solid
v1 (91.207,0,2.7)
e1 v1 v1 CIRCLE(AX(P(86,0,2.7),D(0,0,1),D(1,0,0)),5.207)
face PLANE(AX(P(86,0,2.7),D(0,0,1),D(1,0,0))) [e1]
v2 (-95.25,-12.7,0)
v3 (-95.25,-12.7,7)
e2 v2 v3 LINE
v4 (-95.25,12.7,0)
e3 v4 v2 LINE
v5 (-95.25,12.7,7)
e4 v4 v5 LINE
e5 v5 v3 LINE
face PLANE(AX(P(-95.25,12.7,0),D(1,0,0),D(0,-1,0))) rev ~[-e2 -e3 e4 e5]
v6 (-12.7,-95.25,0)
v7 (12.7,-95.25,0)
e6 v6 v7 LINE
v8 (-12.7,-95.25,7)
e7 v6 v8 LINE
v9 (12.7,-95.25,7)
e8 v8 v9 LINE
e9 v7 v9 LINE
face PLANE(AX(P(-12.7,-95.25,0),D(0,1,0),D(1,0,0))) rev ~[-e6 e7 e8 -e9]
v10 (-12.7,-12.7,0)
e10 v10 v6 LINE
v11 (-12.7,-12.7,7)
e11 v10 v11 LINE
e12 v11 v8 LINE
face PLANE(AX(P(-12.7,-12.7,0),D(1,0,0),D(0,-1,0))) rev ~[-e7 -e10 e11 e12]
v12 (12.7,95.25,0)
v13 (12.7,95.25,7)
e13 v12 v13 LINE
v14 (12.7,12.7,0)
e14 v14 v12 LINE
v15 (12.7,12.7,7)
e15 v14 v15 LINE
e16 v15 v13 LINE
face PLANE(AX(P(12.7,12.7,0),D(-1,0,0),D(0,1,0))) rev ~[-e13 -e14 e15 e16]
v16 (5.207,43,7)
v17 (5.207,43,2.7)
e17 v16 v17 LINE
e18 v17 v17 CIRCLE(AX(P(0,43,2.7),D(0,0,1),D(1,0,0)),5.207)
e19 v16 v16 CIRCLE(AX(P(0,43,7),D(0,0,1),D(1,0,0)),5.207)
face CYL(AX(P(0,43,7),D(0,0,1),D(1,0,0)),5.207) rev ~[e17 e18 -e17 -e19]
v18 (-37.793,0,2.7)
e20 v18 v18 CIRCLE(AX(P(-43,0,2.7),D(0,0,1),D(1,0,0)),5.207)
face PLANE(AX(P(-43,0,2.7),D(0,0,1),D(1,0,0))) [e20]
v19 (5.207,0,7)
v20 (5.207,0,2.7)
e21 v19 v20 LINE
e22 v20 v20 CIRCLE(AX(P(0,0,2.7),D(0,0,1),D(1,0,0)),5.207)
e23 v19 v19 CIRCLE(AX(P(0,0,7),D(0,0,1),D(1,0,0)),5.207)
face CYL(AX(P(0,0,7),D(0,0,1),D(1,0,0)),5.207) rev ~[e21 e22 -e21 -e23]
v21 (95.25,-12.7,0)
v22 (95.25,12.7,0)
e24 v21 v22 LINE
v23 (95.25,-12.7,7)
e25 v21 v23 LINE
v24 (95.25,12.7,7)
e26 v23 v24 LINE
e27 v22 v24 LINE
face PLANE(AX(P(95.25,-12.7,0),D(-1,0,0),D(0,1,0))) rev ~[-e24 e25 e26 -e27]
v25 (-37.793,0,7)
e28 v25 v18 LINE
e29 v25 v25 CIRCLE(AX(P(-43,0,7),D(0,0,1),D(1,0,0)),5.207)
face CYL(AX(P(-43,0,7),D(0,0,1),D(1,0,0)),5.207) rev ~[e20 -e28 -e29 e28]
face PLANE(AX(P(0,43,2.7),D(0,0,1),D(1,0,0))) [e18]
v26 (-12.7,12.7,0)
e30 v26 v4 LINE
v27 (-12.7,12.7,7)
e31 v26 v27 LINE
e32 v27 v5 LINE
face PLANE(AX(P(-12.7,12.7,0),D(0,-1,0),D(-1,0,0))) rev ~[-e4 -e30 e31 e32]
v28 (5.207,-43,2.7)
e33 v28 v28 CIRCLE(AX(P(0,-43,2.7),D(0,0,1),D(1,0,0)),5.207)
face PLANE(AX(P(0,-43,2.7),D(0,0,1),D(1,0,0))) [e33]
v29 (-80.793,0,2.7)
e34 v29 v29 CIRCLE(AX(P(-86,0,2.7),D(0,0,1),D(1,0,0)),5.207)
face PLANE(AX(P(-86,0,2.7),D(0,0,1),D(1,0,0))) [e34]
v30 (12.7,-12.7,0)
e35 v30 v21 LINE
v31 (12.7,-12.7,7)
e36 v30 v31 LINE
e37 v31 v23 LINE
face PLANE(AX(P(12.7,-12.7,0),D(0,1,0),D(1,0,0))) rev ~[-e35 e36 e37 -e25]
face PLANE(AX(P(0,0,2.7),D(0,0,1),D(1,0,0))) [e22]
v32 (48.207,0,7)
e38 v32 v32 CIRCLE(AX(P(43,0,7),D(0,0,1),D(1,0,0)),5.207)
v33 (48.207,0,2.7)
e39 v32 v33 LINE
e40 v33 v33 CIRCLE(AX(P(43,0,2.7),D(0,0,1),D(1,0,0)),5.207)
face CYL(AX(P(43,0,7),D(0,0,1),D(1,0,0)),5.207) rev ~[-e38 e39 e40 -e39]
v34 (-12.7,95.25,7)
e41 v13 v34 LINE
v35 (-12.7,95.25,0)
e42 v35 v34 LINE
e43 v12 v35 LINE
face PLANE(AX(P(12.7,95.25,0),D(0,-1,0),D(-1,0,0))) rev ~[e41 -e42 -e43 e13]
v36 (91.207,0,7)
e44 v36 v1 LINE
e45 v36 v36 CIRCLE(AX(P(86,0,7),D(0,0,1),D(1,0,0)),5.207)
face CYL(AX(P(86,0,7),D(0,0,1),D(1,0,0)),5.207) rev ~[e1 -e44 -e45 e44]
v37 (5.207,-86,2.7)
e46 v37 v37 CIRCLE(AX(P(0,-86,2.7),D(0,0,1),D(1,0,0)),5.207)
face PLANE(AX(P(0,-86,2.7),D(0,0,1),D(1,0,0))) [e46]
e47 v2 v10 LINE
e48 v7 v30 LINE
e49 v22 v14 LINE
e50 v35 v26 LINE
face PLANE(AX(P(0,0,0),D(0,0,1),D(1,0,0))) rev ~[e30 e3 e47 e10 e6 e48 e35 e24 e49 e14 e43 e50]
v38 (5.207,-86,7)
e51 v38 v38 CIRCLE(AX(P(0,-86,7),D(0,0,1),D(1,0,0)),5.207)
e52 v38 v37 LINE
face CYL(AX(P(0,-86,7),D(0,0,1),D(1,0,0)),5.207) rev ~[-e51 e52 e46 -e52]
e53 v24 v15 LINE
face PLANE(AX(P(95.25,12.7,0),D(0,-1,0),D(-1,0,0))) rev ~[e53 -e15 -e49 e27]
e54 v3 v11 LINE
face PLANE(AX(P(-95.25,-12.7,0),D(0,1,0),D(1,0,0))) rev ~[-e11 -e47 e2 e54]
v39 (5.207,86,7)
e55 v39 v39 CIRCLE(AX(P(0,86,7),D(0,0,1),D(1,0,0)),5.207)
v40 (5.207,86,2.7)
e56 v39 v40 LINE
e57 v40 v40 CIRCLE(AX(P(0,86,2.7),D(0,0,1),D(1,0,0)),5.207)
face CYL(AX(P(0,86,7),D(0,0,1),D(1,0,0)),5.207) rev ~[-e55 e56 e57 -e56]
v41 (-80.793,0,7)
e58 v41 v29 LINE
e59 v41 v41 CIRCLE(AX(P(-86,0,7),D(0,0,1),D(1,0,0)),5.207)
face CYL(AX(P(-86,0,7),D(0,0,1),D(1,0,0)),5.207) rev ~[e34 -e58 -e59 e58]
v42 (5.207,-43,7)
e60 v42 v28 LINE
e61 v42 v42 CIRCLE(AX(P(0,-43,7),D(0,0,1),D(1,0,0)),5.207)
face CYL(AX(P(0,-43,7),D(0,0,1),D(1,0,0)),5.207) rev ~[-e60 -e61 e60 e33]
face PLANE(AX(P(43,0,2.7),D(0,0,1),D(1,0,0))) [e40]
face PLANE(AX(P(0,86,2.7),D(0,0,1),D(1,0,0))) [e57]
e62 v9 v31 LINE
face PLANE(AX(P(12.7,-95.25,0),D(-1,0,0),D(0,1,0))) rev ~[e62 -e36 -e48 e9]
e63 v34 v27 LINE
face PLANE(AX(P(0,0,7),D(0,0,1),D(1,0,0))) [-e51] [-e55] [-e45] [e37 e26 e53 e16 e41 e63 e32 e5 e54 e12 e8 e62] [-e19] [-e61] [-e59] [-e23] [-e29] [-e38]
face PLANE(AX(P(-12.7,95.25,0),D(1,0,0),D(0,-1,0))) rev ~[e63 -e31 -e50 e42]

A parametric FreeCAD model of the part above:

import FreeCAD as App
import Part
import Sketcher
Q = App.Units.Quantity


def add_polygon(sketch, points):
    """Adds a closed chain of lines whose ends are joined by coincident constraints."""
    first, n = sketch.GeometryCount, len(points)
    for a, b in zip(points, points[1:] + points[:1]):
        sketch.addGeometry(Part.LineSegment(App.Vector(*a, 0), App.Vector(*b, 0)), False)
    for i in range(n):
        sketch.addConstraint(Sketcher.Constraint("Coincident", first + i, 2, first + (i + 1) % n, 1))

doc = App.newDocument("Part")
body = doc.addObject("PartDesign::Body", "Body")

# Sketch on XY plane
sketch1 = body.newObject("Sketcher::SketchObject", "Sketch")
sketch1.AttachmentSupport = (doc.getObject("XY_Plane"), [""])
sketch1.MapMode = "FlatFace"
add_polygon(sketch1, [(-95, 13), (-95, -13), (-13, -13), (-13, -95), (13, -95), (13, -13), (95, -13), (95, 13), (13, 13), (13, 95), (-13, 95), (-13, 13)])  # lines 0-11
sketch1.addConstraint([
    Sketcher.Constraint("Vertical", 0),
    Sketcher.Constraint("Horizontal", 1),
    Sketcher.Constraint("Vertical", 2),
    Sketcher.Constraint("Horizontal", 3),
    Sketcher.Constraint("Vertical", 4),
    Sketcher.Constraint("Horizontal", 5),
    Sketcher.Constraint("Vertical", 6),
    Sketcher.Constraint("Horizontal", 7),
    Sketcher.Constraint("Vertical", 8),
    Sketcher.Constraint("Horizontal", 9),
    Sketcher.Constraint("Vertical", 10),
    Sketcher.Constraint("Horizontal", 11),
    Sketcher.Constraint("Symmetric", 0, 2, 6, 2, -1, 1),
    Sketcher.Constraint("Symmetric", 2, 2, 8, 2, -1, 1),
    Sketcher.Constraint("Symmetric", 4, 2, 10, 2, -1, 1),
    Sketcher.Constraint("Symmetric", 1, 2, 4, 2, -2),
    Sketcher.Constraint("Equal", 9, 0),
    Sketcher.Constraint("Equal", 11, 2),
    Sketcher.Constraint("DistanceX", 3, 1, 3, 2, Q("1 in")),
    Sketcher.Constraint("DistanceX", 1, 1, 1, 2, Q("3.25 in")),
])
pad1 = body.newObject("PartDesign::Pad", "Pad")
pad1.Profile = sketch1
pad1.Length = 7

# Sketch on XY plane
sketch2 = body.newObject("Sketcher::SketchObject", "Sketch001")
sketch2.AttachmentSupport = (doc.getObject("XY_Plane"), [""])
sketch2.MapMode = "FlatFace"
sketch2.AttachmentOffset = App.Placement(App.Vector(0, 0, 7), App.Rotation())
sketch2.addGeometry([
    Part.Circle(App.Vector(0, 0, 0), App.Vector(0, 0, 1), 5),  # 0
    Part.Circle(App.Vector(-43, 0, 0), App.Vector(0, 0, 1), 5),  # 1
    Part.Circle(App.Vector(-86, 0, 0), App.Vector(0, 0, 1), 5),  # 2
    Part.Circle(App.Vector(86, 0, 0), App.Vector(0, 0, 1), 5),  # 3
    Part.Circle(App.Vector(43, 0, 0), App.Vector(0, 0, 1), 5),  # 4
    Part.Circle(App.Vector(0, -86, 0), App.Vector(0, 0, 1), 5),  # 5
    Part.Circle(App.Vector(0, -43, 0), App.Vector(0, 0, 1), 5),  # 6
    Part.Circle(App.Vector(0, 43, 0), App.Vector(0, 0, 1), 5),  # 7
    Part.Circle(App.Vector(0, 86, 0), App.Vector(0, 0, 1), 5),  # 8
], False)
sketch2.addConstraint([
    Sketcher.Constraint("Coincident", 0, 3, -1, 1),
    Sketcher.Constraint("Equal", 0, 1),
    Sketcher.Constraint("Equal", 1, 2),
    Sketcher.Constraint("Equal", 2, 3),
    Sketcher.Constraint("Equal", 3, 4),
    Sketcher.Constraint("Equal", 4, 5),
    Sketcher.Constraint("Equal", 5, 6),
    Sketcher.Constraint("Equal", 6, 7),
    Sketcher.Constraint("Equal", 7, 8),
    Sketcher.Constraint("Symmetric", 2, 3, 3, 3, -1, 1),
    Sketcher.Constraint("Symmetric", 1, 3, 4, 3, -1, 1),
    Sketcher.Constraint("Symmetric", 6, 3, 7, 3, -1, 1),
    Sketcher.Constraint("Symmetric", 5, 3, 8, 3, -1, 1),
    Sketcher.Constraint("PointOnObject", 1, 3, -1),
    Sketcher.Constraint("PointOnObject", 2, 3, -1),
    Sketcher.Constraint("PointOnObject", 5, 3, -2),
    Sketcher.Constraint("PointOnObject", 6, 3, -2),
    Sketcher.Constraint("Diameter", 0, Q("0.41 in")),
    Sketcher.Constraint("DistanceX", 1, 3, -1, 1, Q("43 mm")),
    Sketcher.Constraint("DistanceX", 2, 3, -1, 1, Q("86 mm")),
    Sketcher.Constraint("DistanceY", 5, 3, -1, 1, Q("86 mm")),
    Sketcher.Constraint("DistanceY", 6, 3, -1, 1, Q("43 mm")),
])
pocket1 = body.newObject("PartDesign::Pocket", "Pocket")
pocket1.Profile = sketch2
pocket1.Length = 4.3

doc.recompute()
